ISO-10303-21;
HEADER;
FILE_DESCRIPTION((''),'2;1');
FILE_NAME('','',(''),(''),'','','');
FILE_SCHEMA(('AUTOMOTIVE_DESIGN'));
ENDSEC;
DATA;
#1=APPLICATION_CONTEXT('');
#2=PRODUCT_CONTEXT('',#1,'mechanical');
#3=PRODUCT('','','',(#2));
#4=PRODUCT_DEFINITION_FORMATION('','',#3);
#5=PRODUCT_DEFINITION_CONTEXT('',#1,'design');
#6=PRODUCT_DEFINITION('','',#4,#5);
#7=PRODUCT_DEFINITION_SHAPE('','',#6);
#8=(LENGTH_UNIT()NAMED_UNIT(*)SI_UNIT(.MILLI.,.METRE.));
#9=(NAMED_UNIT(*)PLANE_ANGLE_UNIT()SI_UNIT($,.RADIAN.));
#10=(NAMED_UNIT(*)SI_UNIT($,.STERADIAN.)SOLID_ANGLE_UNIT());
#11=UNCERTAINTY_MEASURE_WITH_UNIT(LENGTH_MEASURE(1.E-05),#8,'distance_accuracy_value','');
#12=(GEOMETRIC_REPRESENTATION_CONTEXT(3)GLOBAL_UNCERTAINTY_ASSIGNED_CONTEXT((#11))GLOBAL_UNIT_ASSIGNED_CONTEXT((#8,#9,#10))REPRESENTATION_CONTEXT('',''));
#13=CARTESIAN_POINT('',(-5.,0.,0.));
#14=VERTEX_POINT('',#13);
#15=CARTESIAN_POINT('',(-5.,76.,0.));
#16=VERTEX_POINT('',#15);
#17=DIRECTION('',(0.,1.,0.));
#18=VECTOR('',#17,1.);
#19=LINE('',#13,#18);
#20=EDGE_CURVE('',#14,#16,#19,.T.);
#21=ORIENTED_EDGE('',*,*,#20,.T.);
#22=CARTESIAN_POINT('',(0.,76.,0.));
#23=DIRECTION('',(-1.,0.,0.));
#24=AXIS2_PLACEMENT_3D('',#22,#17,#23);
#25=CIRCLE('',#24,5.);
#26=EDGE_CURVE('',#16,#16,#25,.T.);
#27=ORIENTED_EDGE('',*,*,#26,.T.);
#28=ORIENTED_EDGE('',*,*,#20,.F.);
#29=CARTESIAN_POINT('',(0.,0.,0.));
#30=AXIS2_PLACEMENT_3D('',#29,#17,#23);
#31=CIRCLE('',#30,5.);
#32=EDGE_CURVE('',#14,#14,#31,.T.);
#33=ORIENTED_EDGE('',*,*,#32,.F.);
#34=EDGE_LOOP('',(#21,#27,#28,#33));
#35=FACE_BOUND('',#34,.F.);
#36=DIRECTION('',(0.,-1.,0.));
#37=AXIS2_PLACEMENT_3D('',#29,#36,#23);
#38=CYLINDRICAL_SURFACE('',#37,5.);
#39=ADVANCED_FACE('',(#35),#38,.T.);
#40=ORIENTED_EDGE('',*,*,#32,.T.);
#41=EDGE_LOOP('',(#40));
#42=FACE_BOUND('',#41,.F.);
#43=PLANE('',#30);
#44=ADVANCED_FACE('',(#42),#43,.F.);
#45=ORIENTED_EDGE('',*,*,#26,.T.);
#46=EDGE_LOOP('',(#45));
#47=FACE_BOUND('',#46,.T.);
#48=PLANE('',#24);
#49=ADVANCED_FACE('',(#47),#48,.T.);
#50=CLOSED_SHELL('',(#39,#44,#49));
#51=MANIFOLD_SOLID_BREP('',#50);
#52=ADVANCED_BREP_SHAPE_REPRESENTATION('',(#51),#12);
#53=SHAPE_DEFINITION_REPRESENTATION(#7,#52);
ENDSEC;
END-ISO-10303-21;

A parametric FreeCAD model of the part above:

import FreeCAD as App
import Part
import Sketcher
from FreeCAD import Vector
Q = App.Units.Quantity

doc = App.newDocument("Part")
body = doc.addObject("PartDesign::Body", "Body")

# Sketch on XZ plane
sketch1 = doc.addObject("Sketcher::SketchObject", "Sketch")
body.addObject(sketch1)
sketch1.AttachmentSupport = (doc.XZ_Plane, [""])
sketch1.MapMode = "FlatFace"
sketch1.addGeometry(Part.Circle(Vector(0, 0, 0), Vector(0, 0, 1), 5), False)
sketch1.addConstraint([
    Sketcher.Constraint("Coincident", 0, 3, -1, 1),
    Sketcher.Constraint("Diameter", 0, Q("10 mm")),
])
pad1 = doc.addObject("PartDesign::Pad", "Pad")
body.addObject(pad1)
pad1.Profile = sketch1
pad1.Length = 76
pad1.Reversed = True

doc.recompute()
